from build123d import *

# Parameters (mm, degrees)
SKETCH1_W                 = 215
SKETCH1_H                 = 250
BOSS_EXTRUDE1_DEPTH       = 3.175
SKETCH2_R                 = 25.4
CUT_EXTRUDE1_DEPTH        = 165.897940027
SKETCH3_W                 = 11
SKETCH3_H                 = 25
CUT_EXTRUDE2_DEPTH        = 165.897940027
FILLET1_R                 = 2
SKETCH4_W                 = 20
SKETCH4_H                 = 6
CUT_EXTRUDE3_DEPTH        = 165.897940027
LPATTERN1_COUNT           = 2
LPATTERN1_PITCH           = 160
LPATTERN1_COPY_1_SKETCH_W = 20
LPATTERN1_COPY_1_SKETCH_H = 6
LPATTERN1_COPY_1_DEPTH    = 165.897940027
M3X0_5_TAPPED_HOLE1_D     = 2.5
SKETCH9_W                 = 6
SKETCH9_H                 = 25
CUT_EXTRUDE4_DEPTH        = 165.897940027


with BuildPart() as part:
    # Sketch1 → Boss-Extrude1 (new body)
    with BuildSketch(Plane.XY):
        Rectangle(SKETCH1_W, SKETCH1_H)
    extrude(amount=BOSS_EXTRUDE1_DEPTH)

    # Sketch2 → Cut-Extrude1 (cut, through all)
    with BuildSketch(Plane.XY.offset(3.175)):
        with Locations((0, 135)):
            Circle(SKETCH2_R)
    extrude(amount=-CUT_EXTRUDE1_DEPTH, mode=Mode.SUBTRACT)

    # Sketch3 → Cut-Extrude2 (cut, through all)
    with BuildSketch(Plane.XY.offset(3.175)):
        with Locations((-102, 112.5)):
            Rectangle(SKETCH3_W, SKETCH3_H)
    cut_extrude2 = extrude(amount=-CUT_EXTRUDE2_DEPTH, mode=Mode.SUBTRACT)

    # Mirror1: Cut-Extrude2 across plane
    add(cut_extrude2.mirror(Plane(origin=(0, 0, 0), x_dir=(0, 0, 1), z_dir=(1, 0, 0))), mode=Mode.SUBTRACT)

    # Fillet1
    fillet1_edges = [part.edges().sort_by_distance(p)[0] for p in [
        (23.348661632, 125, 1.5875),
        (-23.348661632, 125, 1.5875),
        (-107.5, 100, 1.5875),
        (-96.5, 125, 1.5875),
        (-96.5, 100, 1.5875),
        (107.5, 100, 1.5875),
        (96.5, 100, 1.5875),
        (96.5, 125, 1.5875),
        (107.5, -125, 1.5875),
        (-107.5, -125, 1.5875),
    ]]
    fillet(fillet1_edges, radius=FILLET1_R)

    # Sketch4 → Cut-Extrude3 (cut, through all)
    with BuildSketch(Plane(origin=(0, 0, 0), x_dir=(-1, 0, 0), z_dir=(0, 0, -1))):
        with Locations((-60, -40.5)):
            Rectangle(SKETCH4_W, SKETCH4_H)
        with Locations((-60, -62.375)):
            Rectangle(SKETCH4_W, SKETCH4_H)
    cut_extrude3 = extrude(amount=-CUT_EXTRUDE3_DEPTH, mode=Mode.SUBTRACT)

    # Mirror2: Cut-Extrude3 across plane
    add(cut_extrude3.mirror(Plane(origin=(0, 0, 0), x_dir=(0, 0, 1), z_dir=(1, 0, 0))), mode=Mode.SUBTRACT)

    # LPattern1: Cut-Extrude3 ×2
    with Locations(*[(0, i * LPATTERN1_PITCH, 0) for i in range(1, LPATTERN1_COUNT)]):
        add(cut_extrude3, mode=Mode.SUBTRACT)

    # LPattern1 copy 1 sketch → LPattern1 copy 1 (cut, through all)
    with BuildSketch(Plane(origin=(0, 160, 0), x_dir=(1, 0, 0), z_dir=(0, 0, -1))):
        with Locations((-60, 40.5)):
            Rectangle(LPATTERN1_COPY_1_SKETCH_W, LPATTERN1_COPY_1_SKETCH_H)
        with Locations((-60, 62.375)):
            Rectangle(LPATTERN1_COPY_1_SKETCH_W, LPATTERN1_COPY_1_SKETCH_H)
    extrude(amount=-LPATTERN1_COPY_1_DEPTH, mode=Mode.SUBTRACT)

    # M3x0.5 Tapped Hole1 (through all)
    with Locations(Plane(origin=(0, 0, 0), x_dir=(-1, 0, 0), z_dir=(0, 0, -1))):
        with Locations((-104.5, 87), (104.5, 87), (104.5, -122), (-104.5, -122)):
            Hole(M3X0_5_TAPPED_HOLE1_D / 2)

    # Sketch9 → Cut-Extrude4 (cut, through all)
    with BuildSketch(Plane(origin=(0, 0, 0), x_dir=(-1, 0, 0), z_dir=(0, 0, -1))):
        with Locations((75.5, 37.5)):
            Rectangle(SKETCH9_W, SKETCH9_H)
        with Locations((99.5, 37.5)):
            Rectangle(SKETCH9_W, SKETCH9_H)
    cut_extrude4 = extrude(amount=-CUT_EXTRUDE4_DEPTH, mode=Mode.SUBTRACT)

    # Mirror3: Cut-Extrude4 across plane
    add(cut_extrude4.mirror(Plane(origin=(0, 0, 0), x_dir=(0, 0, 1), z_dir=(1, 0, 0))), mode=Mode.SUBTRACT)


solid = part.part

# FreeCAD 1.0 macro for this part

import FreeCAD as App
import Part
import Sketcher
from FreeCAD import Vector


def edges_at(feature, points):
    """Names of the edges that pass closest to the given points."""
    edges = feature.Shape.Edges
    near = lambda p: min(range(len(edges)), key=lambda i: edges[i].distToShape(Part.Vertex(*p))[0])
    return sorted({f"Edge{near(p) + 1}" for p in points})

doc = App.newDocument("Part")
body = doc.addObject("PartDesign::Body", "Body")

# Sketch on XY plane
sketch1 = body.newObject("Sketcher::SketchObject", "Sketch")
sketch1.AttachmentSupport = (doc.getObject("XY_Plane"), [""])
sketch1.MapMode = "FlatFace"
sketch1.addGeometry([
    Part.LineSegment(Vector(-108, 125, 0), Vector(-108, -125, 0)),
    Part.LineSegment(Vector(-108, -125, 0), Vector(108, -125, 0)),
    Part.LineSegment(Vector(108, -125, 0), Vector(108, 125, 0)),
    Part.LineSegment(Vector(108, 125, 0), Vector(-108, 125, 0)),
], False)
sketch1.addConstraint([
    Sketcher.Constraint("Coincident", 0, 2, 1, 1),
    Sketcher.Constraint("Coincident", 1, 2, 2, 1),
    Sketcher.Constraint("Coincident", 2, 2, 3, 1),
    Sketcher.Constraint("Coincident", 3, 2, 0, 1),
    Sketcher.Constraint("Vertical", 0),
    Sketcher.Constraint("Horizontal", 1),
    Sketcher.Constraint("Vertical", 2),
    Sketcher.Constraint("Horizontal", 3),
    Sketcher.Constraint("Symmetric", 0, 2, 2, 2, -1, 1),
    Sketcher.Constraint("DistanceX", 1, 1, 1, 2, 215.0),
    Sketcher.Constraint("DistanceY", 0, 2, 0, 1, 250.0),
])
pad1 = body.newObject("PartDesign::Pad", "Pad")
pad1.Profile = sketch1
pad1.Length = 3.175

# Sketch on XY plane
sketch2 = body.newObject("Sketcher::SketchObject", "Sketch001")
sketch2.AttachmentSupport = (doc.getObject("XY_Plane"), [""])
sketch2.MapMode = "FlatFace"
sketch2.AttachmentOffset = App.Placement(Vector(0, 0, 3.175), App.Rotation())
sketch2.addGeometry(Part.Circle(Vector(0, 135, 0), Vector(0, 0, 1), 25), False)
sketch2.addConstraint([
    Sketcher.Constraint("PointOnObject", 0, 3, -2),
    Sketcher.Constraint("Diameter", 0, 50.8),
    Sketcher.Constraint("DistanceY", -1, 1, 0, 3, 135.0),
])
pocket1 = body.newObject("PartDesign::Pocket", "Pocket")
pocket1.Profile = sketch2
pocket1.Type = "ThroughAll"

# Sketch on XY plane
sketch3 = body.newObject("Sketcher::SketchObject", "Sketch002")
sketch3.AttachmentSupport = (doc.getObject("XY_Plane"), [""])
sketch3.MapMode = "FlatFace"
sketch3.AttachmentOffset = App.Placement(Vector(0, 0, 3.175), App.Rotation())
sketch3.addGeometry([
    Part.LineSegment(Vector(-108, 125, 0), Vector(-108, 100, 0)),
    Part.LineSegment(Vector(-108, 100, 0), Vector(-96, 100, 0)),
    Part.LineSegment(Vector(-96, 100, 0), Vector(-96, 125, 0)),
    Part.LineSegment(Vector(-96, 125, 0), Vector(-108, 125, 0)),
], False)
sketch3.addConstraint([
    Sketcher.Constraint("Coincident", 0, 2, 1, 1),
    Sketcher.Constraint("Coincident", 1, 2, 2, 1),
    Sketcher.Constraint("Coincident", 2, 2, 3, 1),
    Sketcher.Constraint("Coincident", 3, 2, 0, 1),
    Sketcher.Constraint("Vertical", 0),
    Sketcher.Constraint("Horizontal", 1),
    Sketcher.Constraint("Vertical", 2),
    Sketcher.Constraint("Horizontal", 3),
    Sketcher.Constraint("DistanceX", 1, 1, 1, 2, 11.0),
    Sketcher.Constraint("DistanceY", 0, 2, 0, 1, 25.0),
    Sketcher.Constraint("DistanceY", -1, 1, 0, 2, 100.0),
    Sketcher.Constraint("DistanceX", 0, 2, -1, 1, 107.5),
])
pocket2 = body.newObject("PartDesign::Pocket", "Pocket001")
pocket2.Profile = sketch3
pocket2.Type = "ThroughAll"
doc.recompute()

mirrored = body.newObject("PartDesign::Mirrored", "Mirrored")
mirrored.Originals = [pocket2]
mirrored.MirrorPlane = (doc.getObject("YZ_Plane"), [""])
body.Tip = mirrored
doc.recompute()

fillet = body.newObject("PartDesign::Fillet", "Fillet")
fillet.Base = (mirrored, edges_at(mirrored, [
    (23.349, 125, 1.587),
    (-23.349, 125, 1.587),
    (-107.5, 100, 1.587),
    (-96.5, 125, 1.587),
    (-96.5, 100, 1.587),
    (107.5, 100, 1.587),
    (96.5, 100, 1.587),
    (96.5, 125, 1.587),
    (107.5, -125, 1.587),
    (-107.5, -125, 1.587),
]))
fillet.Radius = 2

# Sketch on XY plane
sketch4 = body.newObject("Sketcher::SketchObject", "Sketch003")
sketch4.AttachmentSupport = (doc.getObject("XY_Plane"), [""])
sketch4.MapMode = "FlatFace"
sketch4.addGeometry([
    Part.LineSegment(Vector(70, -38, 0), Vector(70, -44, 0)),  # 0
    Part.LineSegment(Vector(70, -44, 0), Vector(50, -44, 0)),  # 1
    Part.LineSegment(Vector(50, -44, 0), Vector(50, -38, 0)),  # 2
    Part.LineSegment(Vector(50, -38, 0), Vector(70, -38, 0)),  # 3
    Part.LineSegment(Vector(70, -59, 0), Vector(70, -65, 0)),  # 4
    Part.LineSegment(Vector(70, -65, 0), Vector(50, -65, 0)),  # 5
    Part.LineSegment(Vector(50, -65, 0), Vector(50, -59, 0)),  # 6
    Part.LineSegment(Vector(50, -59, 0), Vector(70, -59, 0)),  # 7
], False)
sketch4.addConstraint([
    Sketcher.Constraint("Coincident", 0, 2, 1, 1),
    Sketcher.Constraint("Coincident", 1, 2, 2, 1),
    Sketcher.Constraint("Coincident", 2, 2, 3, 1),
    Sketcher.Constraint("Coincident", 3, 2, 0, 1),
    Sketcher.Constraint("Coincident", 4, 2, 5, 1),
    Sketcher.Constraint("Coincident", 5, 2, 6, 1),
    Sketcher.Constraint("Coincident", 6, 2, 7, 1),
    Sketcher.Constraint("Coincident", 7, 2, 4, 1),
    Sketcher.Constraint("Vertical", 0),
    Sketcher.Constraint("Horizontal", 1),
    Sketcher.Constraint("Vertical", 2),
    Sketcher.Constraint("Horizontal", 3),
    Sketcher.Constraint("Vertical", 4),
    Sketcher.Constraint("Horizontal", 5),
    Sketcher.Constraint("Vertical", 6),
    Sketcher.Constraint("Horizontal", 7),
    Sketcher.Constraint("Vertical", 3, 2, 4, 2),
    Sketcher.Constraint("Vertical", 2, 2, 5, 2),
    Sketcher.Constraint("Equal", 2, 4),
    Sketcher.Constraint("DistanceX", 1, 2, 1, 1, 20.0),
    Sketcher.Constraint("DistanceY", 0, 2, 0, 1, 6.0),
    Sketcher.Constraint("DistanceX", -1, 1, 0, 2, 70.0),
    Sketcher.Constraint("DistanceY", 0, 2, -1, 1, 43.5),
    Sketcher.Constraint("DistanceY", 4, 2, -1, 1, 65.375),
])
pocket3 = body.newObject("PartDesign::Pocket", "Pocket002")
pocket3.Profile = sketch4
pocket3.Type = "ThroughAll"
pocket3.Reversed = True
doc.recompute()

mirrored2 = body.newObject("PartDesign::Mirrored", "Mirrored001")
mirrored2.Originals = [pocket3]
mirrored2.MirrorPlane = (doc.getObject("YZ_Plane"), [""])
body.Tip = mirrored2
doc.recompute()

linearpattern = body.newObject("PartDesign::LinearPattern", "LinearPattern")
linearpattern.Originals = [pocket3]
linearpattern.Direction = (doc.getObject("Y_Axis"), [""])
linearpattern.Mode = "offset"
linearpattern.Offset = 160
linearpattern.Occurrences = 2
body.Tip = linearpattern

# Sketch on XY plane
sketch5 = body.newObject("Sketcher::SketchObject", "Sketch004")
sketch5.AttachmentSupport = (doc.getObject("XY_Plane"), [""])
sketch5.MapMode = "FlatFace"
sketch5.addGeometry([
    Part.LineSegment(Vector(-70, 116, 0), Vector(-70, 122, 0)),  # 0
    Part.LineSegment(Vector(-70, 122, 0), Vector(-50, 122, 0)),  # 1
    Part.LineSegment(Vector(-50, 122, 0), Vector(-50, 116, 0)),  # 2
    Part.LineSegment(Vector(-50, 116, 0), Vector(-70, 116, 0)),  # 3
    Part.LineSegment(Vector(-70, 95, 0), Vector(-70, 101, 0)),  # 4
    Part.LineSegment(Vector(-70, 101, 0), Vector(-50, 101, 0)),  # 5
    Part.LineSegment(Vector(-50, 101, 0), Vector(-50, 95, 0)),  # 6
    Part.LineSegment(Vector(-50, 95, 0), Vector(-70, 95, 0)),  # 7
], False)
sketch5.addConstraint([
    Sketcher.Constraint("Coincident", 0, 2, 1, 1),
    Sketcher.Constraint("Coincident", 1, 2, 2, 1),
    Sketcher.Constraint("Coincident", 2, 2, 3, 1),
    Sketcher.Constraint("Coincident", 3, 2, 0, 1),
    Sketcher.Constraint("Coincident", 4, 2, 5, 1),
    Sketcher.Constraint("Coincident", 5, 2, 6, 1),
    Sketcher.Constraint("Coincident", 6, 2, 7, 1),
    Sketcher.Constraint("Coincident", 7, 2, 4, 1),
    Sketcher.Constraint("Vertical", 0),
    Sketcher.Constraint("Horizontal", 1),
    Sketcher.Constraint("Vertical", 2),
    Sketcher.Constraint("Horizontal", 3),
    Sketcher.Constraint("Vertical", 4),
    Sketcher.Constraint("Horizontal", 5),
    Sketcher.Constraint("Vertical", 6),
    Sketcher.Constraint("Horizontal", 7),
    Sketcher.Constraint("Vertical", 3, 2, 4, 2),
    Sketcher.Constraint("Vertical", 2, 2, 5, 2),
    Sketcher.Constraint("Equal", 2, 4),
    Sketcher.Constraint("DistanceX", 1, 1, 1, 2, 20.0),
    Sketcher.Constraint("DistanceY", 0, 1, 0, 2, 6.0),
    Sketcher.Constraint("DistanceX", 0, 2, -1, 1, 70.0),
    Sketcher.Constraint("DistanceY", -1, 1, 0, 2, 122.5),
    Sketcher.Constraint("DistanceY", -1, 1, 4, 2, 100.625),
])
pocket4 = body.newObject("PartDesign::Pocket", "Pocket003")
pocket4.Profile = sketch5
pocket4.Type = "ThroughAll"
pocket4.Reversed = True

# Sketch on XY plane
sketch6 = body.newObject("Sketcher::SketchObject", "Sketch005")
sketch6.AttachmentSupport = (doc.getObject("XY_Plane"), [""])
sketch6.MapMode = "FlatFace"
sketch6.addGeometry([
    Part.Circle(Vector(104.5, 87, 0), Vector(0, 0, 1), 1.2),
    Part.Circle(Vector(-104.5, 87, 0), Vector(0, 0, 1), 1.2),
    Part.Circle(Vector(-104.5, -122, 0), Vector(0, 0, 1), 1.2),
    Part.Circle(Vector(104.5, -122, 0), Vector(0, 0, 1), 1.2),
], False)
sketch6.addConstraint([
    Sketcher.Constraint("Equal", 0, 1),
    Sketcher.Constraint("Equal", 1, 2),
    Sketcher.Constraint("Equal", 2, 3),
    Sketcher.Constraint("Symmetric", 0, 3, 1, 3, -2),
    Sketcher.Constraint("Symmetric", 2, 3, 3, 3, -2),
    Sketcher.Constraint("Vertical", 1, 3, 2, 3),
    Sketcher.Constraint("Diameter", 0, 2.5),
    Sketcher.Constraint("DistanceY", -1, 1, 0, 3, 87.0),
    Sketcher.Constraint("DistanceY", 2, 3, -1, 1, 122.0),
    Sketcher.Constraint("DistanceX", 1, 3, 0, 3, 209.0),
])
doc.recompute()
hole = body.newObject("PartDesign::Hole", "Hole")
hole.Profile = sketch6
hole.ThreadType = "None"
hole.Diameter = 2.5
hole.DepthType = "ThroughAll"
hole.Reversed = True

# Sketch on XY plane
sketch7 = body.newObject("Sketcher::SketchObject", "Sketch006")
sketch7.AttachmentSupport = (doc.getObject("XY_Plane"), [""])
sketch7.MapMode = "FlatFace"
sketch7.addGeometry([
    Part.LineSegment(Vector(-72, 50, 0), Vector(-72, 25, 0)),  # 0
    Part.LineSegment(Vector(-72, 25, 0), Vector(-78, 25, 0)),  # 1
    Part.LineSegment(Vector(-78, 25, 0), Vector(-78, 50, 0)),  # 2
    Part.LineSegment(Vector(-78, 50, 0), Vector(-72, 50, 0)),  # 3
    Part.LineSegment(Vector(-96, 50, 0), Vector(-96, 25, 0)),  # 4
    Part.LineSegment(Vector(-96, 25, 0), Vector(-102, 25, 0)),  # 5
    Part.LineSegment(Vector(-102, 25, 0), Vector(-102, 50, 0)),  # 6
    Part.LineSegment(Vector(-102, 50, 0), Vector(-96, 50, 0)),  # 7
], False)
sketch7.addConstraint([
    Sketcher.Constraint("Coincident", 0, 2, 1, 1),
    Sketcher.Constraint("Coincident", 1, 2, 2, 1),
    Sketcher.Constraint("Coincident", 2, 2, 3, 1),
    Sketcher.Constraint("Coincident", 3, 2, 0, 1),
    Sketcher.Constraint("Coincident", 4, 2, 5, 1),
    Sketcher.Constraint("Coincident", 5, 2, 6, 1),
    Sketcher.Constraint("Coincident", 6, 2, 7, 1),
    Sketcher.Constraint("Coincident", 7, 2, 4, 1),
    Sketcher.Constraint("Vertical", 0),
    Sketcher.Constraint("Horizontal", 1),
    Sketcher.Constraint("Vertical", 2),
    Sketcher.Constraint("Horizontal", 3),
    Sketcher.Constraint("Vertical", 4),
    Sketcher.Constraint("Horizontal", 5),
    Sketcher.Constraint("Vertical", 6),
    Sketcher.Constraint("Horizontal", 7),
    Sketcher.Constraint("Horizontal", 1, 2, 4, 2),
    Sketcher.Constraint("Horizontal", 3, 2, 6, 2),
    Sketcher.Constraint("Equal", 3, 5),
    Sketcher.Constraint("DistanceX", 1, 2, 1, 1, 6.0),
    Sketcher.Constraint("DistanceY", 0, 2, 0, 1, 25.0),
    Sketcher.Constraint("DistanceY", -1, 1, 0, 2, 25.0),
    Sketcher.Constraint("DistanceX", 4, 2, 1, 2, 18.0),
    Sketcher.Constraint("DistanceX", 0, 2, -1, 1, 72.5),
])
pocket5 = body.newObject("PartDesign::Pocket", "Pocket004")
pocket5.Profile = sketch7
pocket5.Type = "ThroughAll"
pocket5.Reversed = True
doc.recompute()

mirrored3 = body.newObject("PartDesign::Mirrored", "Mirrored002")
mirrored3.Originals = [pocket5]
mirrored3.MirrorPlane = (doc.getObject("YZ_Plane"), [""])
body.Tip = mirrored3

doc.recompute()
